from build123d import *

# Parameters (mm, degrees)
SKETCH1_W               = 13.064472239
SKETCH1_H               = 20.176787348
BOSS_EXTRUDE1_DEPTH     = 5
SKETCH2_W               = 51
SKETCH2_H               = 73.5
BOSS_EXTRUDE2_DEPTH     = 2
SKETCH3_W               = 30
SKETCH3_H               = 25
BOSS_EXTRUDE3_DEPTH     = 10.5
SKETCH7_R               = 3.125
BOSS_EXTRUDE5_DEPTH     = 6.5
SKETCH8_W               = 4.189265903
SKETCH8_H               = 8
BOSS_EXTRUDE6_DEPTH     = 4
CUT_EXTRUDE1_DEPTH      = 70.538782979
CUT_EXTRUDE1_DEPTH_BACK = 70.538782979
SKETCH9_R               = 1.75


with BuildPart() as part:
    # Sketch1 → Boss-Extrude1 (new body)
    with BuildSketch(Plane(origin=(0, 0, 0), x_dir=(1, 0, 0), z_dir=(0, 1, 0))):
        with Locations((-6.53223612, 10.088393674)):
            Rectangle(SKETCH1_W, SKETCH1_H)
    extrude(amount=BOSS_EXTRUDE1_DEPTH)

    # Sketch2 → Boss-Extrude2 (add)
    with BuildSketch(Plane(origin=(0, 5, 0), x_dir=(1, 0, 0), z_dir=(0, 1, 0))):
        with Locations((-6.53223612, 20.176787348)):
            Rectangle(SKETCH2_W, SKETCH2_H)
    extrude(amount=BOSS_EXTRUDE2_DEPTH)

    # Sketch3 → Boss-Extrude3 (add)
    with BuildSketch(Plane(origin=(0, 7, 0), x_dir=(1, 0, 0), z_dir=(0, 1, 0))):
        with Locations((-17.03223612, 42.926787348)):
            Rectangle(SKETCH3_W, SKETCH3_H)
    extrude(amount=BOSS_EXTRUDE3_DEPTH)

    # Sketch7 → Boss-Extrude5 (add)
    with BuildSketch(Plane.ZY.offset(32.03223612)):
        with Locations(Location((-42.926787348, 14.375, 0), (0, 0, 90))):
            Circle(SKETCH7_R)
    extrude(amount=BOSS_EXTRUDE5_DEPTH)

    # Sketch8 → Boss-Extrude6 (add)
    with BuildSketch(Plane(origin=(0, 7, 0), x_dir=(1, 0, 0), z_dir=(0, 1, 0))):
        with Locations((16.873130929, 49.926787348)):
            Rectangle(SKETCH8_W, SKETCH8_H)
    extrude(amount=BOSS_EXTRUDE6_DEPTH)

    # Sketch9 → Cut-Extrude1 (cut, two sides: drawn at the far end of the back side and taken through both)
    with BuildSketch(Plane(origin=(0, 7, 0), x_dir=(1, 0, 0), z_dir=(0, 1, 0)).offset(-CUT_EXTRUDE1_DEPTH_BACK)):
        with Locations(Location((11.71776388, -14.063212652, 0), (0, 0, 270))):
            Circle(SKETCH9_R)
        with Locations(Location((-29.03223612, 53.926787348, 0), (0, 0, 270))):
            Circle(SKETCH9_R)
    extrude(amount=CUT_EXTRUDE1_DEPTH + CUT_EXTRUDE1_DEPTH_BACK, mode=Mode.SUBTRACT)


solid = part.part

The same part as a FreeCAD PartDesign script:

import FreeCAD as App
import Part
import Sketcher

V = App.Vector


def add_polygon(sketch, points):
    """Adds a closed chain of lines whose ends are joined by coincident constraints."""
    first, n = sketch.GeometryCount, len(points)
    for a, b in zip(points, points[1:] + points[:1]):
        sketch.addGeometry(Part.LineSegment(App.Vector(*a, 0), App.Vector(*b, 0)), False)
    for i in range(n):
        sketch.addConstraint(Sketcher.Constraint("Coincident", first + i, 2, first + (i + 1) % n, 1))

doc = App.newDocument("Part")
body = doc.addObject("PartDesign::Body", "Body")

sketch1 = body.newObject("Sketcher::SketchObject", "Sketch")
sketch1.AttachmentSupport = (doc.getObject("XZ_Plane"), [""])
sketch1.MapMode = "FlatFace"
add_polygon(sketch1, [(-13.064472, -20.176787), (-13.064472, 0), (0, 0), (0, -20.176787)])
sketch1.addConstraint(Sketcher.Constraint("Vertical", 0))
sketch1.addConstraint(Sketcher.Constraint("Horizontal", 1))
sketch1.addConstraint(Sketcher.Constraint("Vertical", 2))
sketch1.addConstraint(Sketcher.Constraint("Horizontal", 3))
sketch1.addConstraint(Sketcher.Constraint("Coincident", 1, 2, -1, 1))
sketch1.addConstraint(Sketcher.Constraint("DistanceX", 1, 1, 1, 2, 13.064472))
sketch1.addConstraint(Sketcher.Constraint("DistanceY", 0, 1, 0, 2, 20.176787))
pad1 = body.newObject("PartDesign::Pad", "Pad")
pad1.Profile = sketch1
pad1.Length = 5
pad1.Reversed = True

sketch2 = body.newObject("Sketcher::SketchObject", "Sketch001")
sketch2.AttachmentSupport = (doc.getObject("XZ_Plane"), [""])
sketch2.MapMode = "FlatFace"
sketch2.AttachmentOffset = App.Placement(V(0, 0, -5), App.Rotation())
add_polygon(sketch2, [(-32.032236, -56.926787), (-32.032236, 16.573213), (18.967764, 16.573213), (18.967764, -56.926787)])
sketch2.addConstraint(Sketcher.Constraint("Vertical", 0))
sketch2.addConstraint(Sketcher.Constraint("Horizontal", 1))
sketch2.addConstraint(Sketcher.Constraint("Vertical", 2))
sketch2.addConstraint(Sketcher.Constraint("Horizontal", 3))
sketch2.addConstraint(Sketcher.Constraint("DistanceX", 1, 1, 1, 2, 51.0))
sketch2.addConstraint(Sketcher.Constraint("DistanceY", 0, 1, 0, 2, 73.5))
sketch2.addConstraint(Sketcher.Constraint("DistanceX", 0, 2, -1, 1, 32.032236))
sketch2.addConstraint(Sketcher.Constraint("DistanceY", -1, 1, 0, 2, 16.573213))
pad2 = body.newObject("PartDesign::Pad", "Pad001")
pad2.Profile = sketch2
pad2.Length = 2
pad2.Reversed = True

sketch3 = body.newObject("Sketcher::SketchObject", "Sketch002")
sketch3.AttachmentSupport = (doc.getObject("XZ_Plane"), [""])
sketch3.MapMode = "FlatFace"
sketch3.AttachmentOffset = App.Placement(V(0, 0, -7), App.Rotation())
add_polygon(sketch3, [(-32.032236, -55.426787), (-32.032236, -30.426787), (-2.032236, -30.426787), (-2.032236, -55.426787)])
sketch3.addConstraint(Sketcher.Constraint("Vertical", 0))
sketch3.addConstraint(Sketcher.Constraint("Horizontal", 1))
sketch3.addConstraint(Sketcher.Constraint("Vertical", 2))
sketch3.addConstraint(Sketcher.Constraint("Horizontal", 3))
sketch3.addConstraint(Sketcher.Constraint("DistanceX", 1, 1, 1, 2, 30.0))
sketch3.addConstraint(Sketcher.Constraint("DistanceY", 0, 1, 0, 2, 25.0))
sketch3.addConstraint(Sketcher.Constraint("DistanceX", 0, 2, -1, 1, 32.032236))
sketch3.addConstraint(Sketcher.Constraint("DistanceY", 0, 2, -1, 1, 30.426787))
pad3 = body.newObject("PartDesign::Pad", "Pad002")
pad3.Profile = sketch3
pad3.Length = 10.5
pad3.Reversed = True

sketch4 = body.newObject("Sketcher::SketchObject", "Sketch003")
sketch4.AttachmentSupport = (doc.getObject("YZ_Plane"), [""])
sketch4.MapMode = "FlatFace"
sketch4.AttachmentOffset = App.Placement(V(0, 0, -32.032236), App.Rotation())
sketch4.addGeometry(Part.Circle(V(14.375, -42.926787, 0), V(0, 0, 1), 3.125), False)
sketch4.addConstraint(Sketcher.Constraint("Diameter", 0, 6.25))
sketch4.addConstraint(Sketcher.Constraint("DistanceX", -1, 1, 0, 3, 14.375))
sketch4.addConstraint(Sketcher.Constraint("DistanceY", 0, 3, -1, 1, 42.926787))
pad4 = body.newObject("PartDesign::Pad", "Pad003")
pad4.Profile = sketch4
pad4.Length = 6.5
pad4.Reversed = True

sketch5 = body.newObject("Sketcher::SketchObject", "Sketch004")
sketch5.AttachmentSupport = (doc.getObject("XZ_Plane"), [""])
sketch5.MapMode = "FlatFace"
sketch5.AttachmentOffset = App.Placement(V(0, 0, -7), App.Rotation())
add_polygon(sketch5, [(14.778498, -53.926787), (14.778498, -45.926787), (18.967764, -45.926787), (18.967764, -53.926787)])
sketch5.addConstraint(Sketcher.Constraint("Vertical", 0))
sketch5.addConstraint(Sketcher.Constraint("Horizontal", 1))
sketch5.addConstraint(Sketcher.Constraint("Vertical", 2))
sketch5.addConstraint(Sketcher.Constraint("Horizontal", 3))
sketch5.addConstraint(Sketcher.Constraint("DistanceY", 0, 1, 0, 2, 8.0))
sketch5.addConstraint(Sketcher.Constraint("DistanceX", 1, 1, 1, 2, 4.189266))
sketch5.addConstraint(Sketcher.Constraint("DistanceX", -1, 1, 0, 2, 14.778498))
sketch5.addConstraint(Sketcher.Constraint("DistanceY", 0, 2, -1, 1, 45.926787))
pad5 = body.newObject("PartDesign::Pad", "Pad004")
pad5.Profile = sketch5
pad5.Length = 4
pad5.Reversed = True

sketch6 = body.newObject("Sketcher::SketchObject", "Sketch005")
sketch6.AttachmentSupport = (doc.getObject("XZ_Plane"), [""])
sketch6.MapMode = "FlatFace"
sketch6.AttachmentOffset = App.Placement(V(0, 0, -7), App.Rotation())
sketch6.addGeometry(Part.Circle(V(11.717764, 14.063213, 0), V(0, 0, 1), 1.75), False)
sketch6.addGeometry(Part.Circle(V(-29.032236, -53.926787, 0), V(0, 0, 1), 1.75), False)
sketch6.addConstraint(Sketcher.Constraint("Equal", 0, 1))
sketch6.addConstraint(Sketcher.Constraint("Diameter", 0, 3.5))
sketch6.addConstraint(Sketcher.Constraint("DistanceX", 1, 3, 0, 3, 40.75))
sketch6.addConstraint(Sketcher.Constraint("DistanceY", 1, 3, 0, 3, 67.99))
sketch6.addConstraint(Sketcher.Constraint("DistanceX", -1, 1, 0, 3, 11.717764))
sketch6.addConstraint(Sketcher.Constraint("DistanceY", -1, 1, 0, 3, 14.063213))
pocket1 = body.newObject("PartDesign::Pocket", "Pocket")
pocket1.Profile = sketch6
pocket1.Type = "ThroughAll"
pocket1.Midplane = True

doc.recompute()
